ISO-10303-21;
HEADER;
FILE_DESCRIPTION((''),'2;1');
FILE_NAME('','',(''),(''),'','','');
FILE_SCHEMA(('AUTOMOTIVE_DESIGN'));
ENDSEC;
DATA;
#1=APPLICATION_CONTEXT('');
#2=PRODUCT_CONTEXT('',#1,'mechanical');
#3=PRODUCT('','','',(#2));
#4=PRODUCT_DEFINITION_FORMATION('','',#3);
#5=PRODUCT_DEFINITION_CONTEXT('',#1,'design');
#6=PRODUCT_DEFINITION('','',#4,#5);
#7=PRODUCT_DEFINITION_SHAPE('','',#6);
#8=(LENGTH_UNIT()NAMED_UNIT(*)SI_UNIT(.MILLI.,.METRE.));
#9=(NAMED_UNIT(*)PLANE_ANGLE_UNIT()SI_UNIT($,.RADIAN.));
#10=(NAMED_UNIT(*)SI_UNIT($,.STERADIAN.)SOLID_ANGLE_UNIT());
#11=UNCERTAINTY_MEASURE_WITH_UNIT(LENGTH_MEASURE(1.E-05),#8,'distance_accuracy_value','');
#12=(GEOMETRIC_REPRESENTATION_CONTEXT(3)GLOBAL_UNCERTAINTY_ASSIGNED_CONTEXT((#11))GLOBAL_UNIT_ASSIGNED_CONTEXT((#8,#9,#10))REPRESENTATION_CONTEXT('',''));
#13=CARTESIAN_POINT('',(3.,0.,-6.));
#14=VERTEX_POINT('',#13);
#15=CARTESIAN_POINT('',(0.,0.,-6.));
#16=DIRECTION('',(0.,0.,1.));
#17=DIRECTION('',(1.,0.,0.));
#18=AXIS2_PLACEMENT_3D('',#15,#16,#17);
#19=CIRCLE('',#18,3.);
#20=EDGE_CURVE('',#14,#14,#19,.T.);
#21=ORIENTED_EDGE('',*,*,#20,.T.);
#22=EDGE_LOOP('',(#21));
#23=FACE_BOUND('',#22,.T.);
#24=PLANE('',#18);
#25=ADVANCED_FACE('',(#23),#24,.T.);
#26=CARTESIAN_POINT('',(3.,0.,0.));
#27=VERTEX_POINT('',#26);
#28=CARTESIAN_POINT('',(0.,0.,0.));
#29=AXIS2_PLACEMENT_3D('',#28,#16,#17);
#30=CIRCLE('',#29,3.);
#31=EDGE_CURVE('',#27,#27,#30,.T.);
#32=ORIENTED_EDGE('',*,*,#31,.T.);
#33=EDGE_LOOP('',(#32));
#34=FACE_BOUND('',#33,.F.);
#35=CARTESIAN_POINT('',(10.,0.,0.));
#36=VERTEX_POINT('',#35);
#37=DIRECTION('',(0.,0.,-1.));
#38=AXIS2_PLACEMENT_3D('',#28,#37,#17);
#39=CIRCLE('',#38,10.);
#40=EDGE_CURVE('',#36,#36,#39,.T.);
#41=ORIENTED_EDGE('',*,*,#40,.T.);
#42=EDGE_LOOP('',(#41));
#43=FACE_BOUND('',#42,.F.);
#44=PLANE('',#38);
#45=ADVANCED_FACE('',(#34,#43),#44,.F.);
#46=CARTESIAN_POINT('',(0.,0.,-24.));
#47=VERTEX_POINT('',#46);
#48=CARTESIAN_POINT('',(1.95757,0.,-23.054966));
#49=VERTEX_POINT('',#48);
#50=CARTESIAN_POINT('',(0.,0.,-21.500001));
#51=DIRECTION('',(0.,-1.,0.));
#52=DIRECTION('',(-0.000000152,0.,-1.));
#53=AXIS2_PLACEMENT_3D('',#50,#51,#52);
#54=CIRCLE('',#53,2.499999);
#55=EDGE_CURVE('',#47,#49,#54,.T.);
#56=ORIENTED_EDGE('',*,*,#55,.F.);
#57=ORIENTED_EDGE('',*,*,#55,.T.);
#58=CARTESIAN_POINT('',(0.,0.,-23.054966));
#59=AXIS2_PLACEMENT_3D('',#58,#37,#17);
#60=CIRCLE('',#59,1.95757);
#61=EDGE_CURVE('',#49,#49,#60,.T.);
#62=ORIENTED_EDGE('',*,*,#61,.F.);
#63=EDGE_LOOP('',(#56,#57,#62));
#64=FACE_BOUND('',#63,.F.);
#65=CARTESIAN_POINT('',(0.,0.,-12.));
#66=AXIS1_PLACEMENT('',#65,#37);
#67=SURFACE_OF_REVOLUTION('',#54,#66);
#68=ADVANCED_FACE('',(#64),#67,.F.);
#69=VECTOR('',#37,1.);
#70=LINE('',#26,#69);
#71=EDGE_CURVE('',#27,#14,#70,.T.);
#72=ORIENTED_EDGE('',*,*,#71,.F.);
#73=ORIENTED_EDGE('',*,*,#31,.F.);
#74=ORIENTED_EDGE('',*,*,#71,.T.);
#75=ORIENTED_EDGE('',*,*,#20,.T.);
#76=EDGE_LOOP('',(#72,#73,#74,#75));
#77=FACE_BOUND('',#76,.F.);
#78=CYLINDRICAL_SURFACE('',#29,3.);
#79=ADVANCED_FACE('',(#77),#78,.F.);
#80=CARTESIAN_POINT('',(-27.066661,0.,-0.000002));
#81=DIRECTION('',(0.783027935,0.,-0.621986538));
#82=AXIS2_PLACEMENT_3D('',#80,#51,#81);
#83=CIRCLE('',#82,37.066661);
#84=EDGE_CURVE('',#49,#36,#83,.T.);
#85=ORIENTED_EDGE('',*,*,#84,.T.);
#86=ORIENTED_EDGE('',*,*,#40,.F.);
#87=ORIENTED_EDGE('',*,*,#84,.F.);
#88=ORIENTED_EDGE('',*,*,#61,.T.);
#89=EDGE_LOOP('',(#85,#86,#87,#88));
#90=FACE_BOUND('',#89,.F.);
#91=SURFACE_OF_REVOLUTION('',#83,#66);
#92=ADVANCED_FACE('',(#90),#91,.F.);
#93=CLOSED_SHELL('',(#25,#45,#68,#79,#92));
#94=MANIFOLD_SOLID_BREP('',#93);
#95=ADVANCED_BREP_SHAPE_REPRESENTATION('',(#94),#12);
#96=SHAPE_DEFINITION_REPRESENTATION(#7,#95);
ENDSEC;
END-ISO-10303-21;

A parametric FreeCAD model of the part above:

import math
import FreeCAD as App
import Part
import Sketcher
from FreeCAD import Vector

doc = App.newDocument("Part")
params = doc.addObject("Spreadsheet::Sheet", "Params")
for row, (alias, value) in enumerate([
    ("sketch1_radius", "2.499999 mm"),
    ("sketch1_width", "10 mm"),
    ("sketch1_height", "24 mm"),
    ("revolution_angle", "360 deg"),
    ("sketch2_diameter", "6 mm"),
    ("pocket1_length", "6 mm"),
], start=1):
    params.set(f"A{row}", alias)
    params.set(f"B{row}", "=" + value)
    params.setAlias(f"B{row}", alias)

body = doc.addObject("PartDesign::Body", "Body")

sketch1 = body.newObject("Sketcher::SketchObject", "Sketch")
sketch1.AttachmentSupport = (doc.getObject("XZ_Plane"), [""])
sketch1.MapMode = "FlatFace"
sketch1.addGeometry([
    Part.LineSegment(Vector(10, 0, 0), Vector(0, 0, 0)),
    Part.LineSegment(Vector(0, 0, 0), Vector(0, -24, 0)),
    Part.ArcOfCircle(Part.Circle(Vector(0, -21.5, 0), Vector(0, 0, 1), 2.5), math.radians(-90), math.radians(-38)),
    Part.ArcOfCircle(Part.Circle(Vector(-27.1, 0, 0), Vector(0, 0, 1), 37.1), math.radians(-38), math.radians(0)),
], False)
sketch1.addConstraint([
    Sketcher.Constraint("Coincident", 0, 2, 1, 1),
    Sketcher.Constraint("Coincident", 1, 2, 2, 1),
    Sketcher.Constraint("Tangent", 2, 2, 3, 1),
    Sketcher.Constraint("Coincident", 3, 2, 0, 1),
    Sketcher.Constraint("Horizontal", 0),
    Sketcher.Constraint("Vertical", 1),
    Sketcher.Constraint("Coincident", 0, 2, -1, 1),
    Sketcher.Constraint("PointOnObject", 2, 3, -2),
    Sketcher.Constraint("PointOnObject", 3, 3, -1),
    Sketcher.Constraint("Radius", 2, 2.499999),
    Sketcher.Constraint("DistanceX", 0, 2, 0, 1, 10.0),
    Sketcher.Constraint("DistanceY", 1, 2, 1, 1, 24.0),
])
sketch1.setExpression("Constraints[9]", "Params.sketch1_radius")
sketch1.setExpression("Constraints[10]", "Params.sketch1_width")
sketch1.setExpression("Constraints[11]", "Params.sketch1_height")
revolution = body.newObject("PartDesign::Revolution", "Revolution")
revolution.Profile = sketch1
revolution.ReferenceAxis = (sketch1, ["V_Axis"])
revolution.setExpression("Angle", "Params.revolution_angle")

sketch2 = body.newObject("Sketcher::SketchObject", "Sketch001")
sketch2.AttachmentSupport = (doc.getObject("XY_Plane"), [""])
sketch2.MapMode = "FlatFace"
sketch2.addGeometry(Part.Circle(Vector(0, 0, 0), Vector(0, 0, 1), 3), False)
sketch2.addConstraint([
    Sketcher.Constraint("Coincident", 0, 3, -1, 1),
    Sketcher.Constraint("Diameter", 0, 6.0),
])
sketch2.setExpression("Constraints[1]", "Params.sketch2_diameter")
pocket1 = body.newObject("PartDesign::Pocket", "Pocket")
pocket1.Profile = sketch2
pocket1.setExpression("Length", "Params.pocket1_length")

doc.recompute()
